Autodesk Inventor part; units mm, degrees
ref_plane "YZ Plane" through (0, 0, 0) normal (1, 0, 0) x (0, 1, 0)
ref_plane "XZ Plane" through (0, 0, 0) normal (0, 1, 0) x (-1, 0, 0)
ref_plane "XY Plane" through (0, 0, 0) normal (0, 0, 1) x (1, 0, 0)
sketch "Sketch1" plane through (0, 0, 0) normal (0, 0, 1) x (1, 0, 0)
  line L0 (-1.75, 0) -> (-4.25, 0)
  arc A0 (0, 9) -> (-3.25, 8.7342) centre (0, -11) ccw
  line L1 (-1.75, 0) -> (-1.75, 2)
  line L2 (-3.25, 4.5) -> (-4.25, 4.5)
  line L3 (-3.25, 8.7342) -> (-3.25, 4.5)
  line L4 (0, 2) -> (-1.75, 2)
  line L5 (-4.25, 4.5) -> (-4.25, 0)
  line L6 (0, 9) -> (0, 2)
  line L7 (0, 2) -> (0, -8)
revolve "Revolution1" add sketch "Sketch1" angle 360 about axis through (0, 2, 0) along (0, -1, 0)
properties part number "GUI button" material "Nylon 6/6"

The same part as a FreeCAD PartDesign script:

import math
import FreeCAD as App
import Part
import Sketcher

V = App.Vector

doc = App.newDocument("Part")
body = doc.addObject("PartDesign::Body", "Body")

# Sketch on XY plane
sketch1 = body.newObject("Sketcher::SketchObject", "Sketch")
sketch1.AttachmentSupport = (doc.getObject("XY_Plane"), [""])
sketch1.MapMode = "FlatFace"
sketch1.addGeometry([
    Part.LineSegment(V(-4.25, 0, 0), V(-1.75, 0, 0)),  # 0
    Part.LineSegment(V(-1.75, 0, 0), V(-1.75, 2, 0)),  # 1
    Part.LineSegment(V(-1.75, 2, 0), V(0, 2, 0)),  # 2
    Part.LineSegment(V(0, 2, 0), V(0, 9, 0)),  # 3
    Part.ArcOfCircle(Part.Circle(V(0.000176, -11.004318, 0), V(0, 0, 1), 20.004318), math.radians(90.000505), math.radians(99.35051)),  # 4
    Part.LineSegment(V(-3.25, 8.7342, 0), V(-3.25, 4.5, 0)),  # 5
    Part.LineSegment(V(-3.25, 4.5, 0), V(-4.25, 4.5, 0)),  # 6
    Part.LineSegment(V(-4.25, 4.5, 0), V(-4.25, 0, 0)),  # 7
], False)
sketch1.addConstraint([
    Sketcher.Constraint("Coincident", 0, 2, 1, 1),
    Sketcher.Constraint("Coincident", 1, 2, 2, 1),
    Sketcher.Constraint("Coincident", 2, 2, 3, 1),
    Sketcher.Constraint("Coincident", 3, 2, 4, 1),
    Sketcher.Constraint("Coincident", 4, 2, 5, 1),
    Sketcher.Constraint("Coincident", 5, 2, 6, 1),
    Sketcher.Constraint("Coincident", 6, 2, 7, 1),
    Sketcher.Constraint("Coincident", 7, 2, 0, 1),
    Sketcher.Constraint("Horizontal", 0),
    Sketcher.Constraint("Vertical", 1),
    Sketcher.Constraint("Horizontal", 2),
    Sketcher.Constraint("Vertical", 3),
    Sketcher.Constraint("Vertical", 5),
    Sketcher.Constraint("Horizontal", 6),
    Sketcher.Constraint("Vertical", 7),
    Sketcher.Constraint("PointOnObject", 4, 3, -2),
    Sketcher.Constraint("PointOnObject", 0, 2, -1),
    Sketcher.Constraint("PointOnObject", 2, 2, -2),
    Sketcher.Constraint("DistanceX", 6, 2, 6, 1, 1.0),
    Sketcher.Constraint("DistanceY", 1, 1, 1, 2, 2.0),
    Sketcher.Constraint("DistanceY", 3, 1, 3, 2, 7.0),
    Sketcher.Constraint("DistanceX", 0, 1, 0, 2, 2.5),
    Sketcher.Constraint("DistanceY", 7, 2, 7, 1, 4.5),
    Sketcher.Constraint("DistanceX", 2, 1, 2, 2, 1.75),
    Sketcher.Constraint("Radius", 4, 20.0043),
])
revolution = body.newObject("PartDesign::Revolution", "Revolution")
revolution.Profile = sketch1
revolution.ReferenceAxis = (sketch1, ["V_Axis"])
revolution.Angle = 360

doc.recompute()
